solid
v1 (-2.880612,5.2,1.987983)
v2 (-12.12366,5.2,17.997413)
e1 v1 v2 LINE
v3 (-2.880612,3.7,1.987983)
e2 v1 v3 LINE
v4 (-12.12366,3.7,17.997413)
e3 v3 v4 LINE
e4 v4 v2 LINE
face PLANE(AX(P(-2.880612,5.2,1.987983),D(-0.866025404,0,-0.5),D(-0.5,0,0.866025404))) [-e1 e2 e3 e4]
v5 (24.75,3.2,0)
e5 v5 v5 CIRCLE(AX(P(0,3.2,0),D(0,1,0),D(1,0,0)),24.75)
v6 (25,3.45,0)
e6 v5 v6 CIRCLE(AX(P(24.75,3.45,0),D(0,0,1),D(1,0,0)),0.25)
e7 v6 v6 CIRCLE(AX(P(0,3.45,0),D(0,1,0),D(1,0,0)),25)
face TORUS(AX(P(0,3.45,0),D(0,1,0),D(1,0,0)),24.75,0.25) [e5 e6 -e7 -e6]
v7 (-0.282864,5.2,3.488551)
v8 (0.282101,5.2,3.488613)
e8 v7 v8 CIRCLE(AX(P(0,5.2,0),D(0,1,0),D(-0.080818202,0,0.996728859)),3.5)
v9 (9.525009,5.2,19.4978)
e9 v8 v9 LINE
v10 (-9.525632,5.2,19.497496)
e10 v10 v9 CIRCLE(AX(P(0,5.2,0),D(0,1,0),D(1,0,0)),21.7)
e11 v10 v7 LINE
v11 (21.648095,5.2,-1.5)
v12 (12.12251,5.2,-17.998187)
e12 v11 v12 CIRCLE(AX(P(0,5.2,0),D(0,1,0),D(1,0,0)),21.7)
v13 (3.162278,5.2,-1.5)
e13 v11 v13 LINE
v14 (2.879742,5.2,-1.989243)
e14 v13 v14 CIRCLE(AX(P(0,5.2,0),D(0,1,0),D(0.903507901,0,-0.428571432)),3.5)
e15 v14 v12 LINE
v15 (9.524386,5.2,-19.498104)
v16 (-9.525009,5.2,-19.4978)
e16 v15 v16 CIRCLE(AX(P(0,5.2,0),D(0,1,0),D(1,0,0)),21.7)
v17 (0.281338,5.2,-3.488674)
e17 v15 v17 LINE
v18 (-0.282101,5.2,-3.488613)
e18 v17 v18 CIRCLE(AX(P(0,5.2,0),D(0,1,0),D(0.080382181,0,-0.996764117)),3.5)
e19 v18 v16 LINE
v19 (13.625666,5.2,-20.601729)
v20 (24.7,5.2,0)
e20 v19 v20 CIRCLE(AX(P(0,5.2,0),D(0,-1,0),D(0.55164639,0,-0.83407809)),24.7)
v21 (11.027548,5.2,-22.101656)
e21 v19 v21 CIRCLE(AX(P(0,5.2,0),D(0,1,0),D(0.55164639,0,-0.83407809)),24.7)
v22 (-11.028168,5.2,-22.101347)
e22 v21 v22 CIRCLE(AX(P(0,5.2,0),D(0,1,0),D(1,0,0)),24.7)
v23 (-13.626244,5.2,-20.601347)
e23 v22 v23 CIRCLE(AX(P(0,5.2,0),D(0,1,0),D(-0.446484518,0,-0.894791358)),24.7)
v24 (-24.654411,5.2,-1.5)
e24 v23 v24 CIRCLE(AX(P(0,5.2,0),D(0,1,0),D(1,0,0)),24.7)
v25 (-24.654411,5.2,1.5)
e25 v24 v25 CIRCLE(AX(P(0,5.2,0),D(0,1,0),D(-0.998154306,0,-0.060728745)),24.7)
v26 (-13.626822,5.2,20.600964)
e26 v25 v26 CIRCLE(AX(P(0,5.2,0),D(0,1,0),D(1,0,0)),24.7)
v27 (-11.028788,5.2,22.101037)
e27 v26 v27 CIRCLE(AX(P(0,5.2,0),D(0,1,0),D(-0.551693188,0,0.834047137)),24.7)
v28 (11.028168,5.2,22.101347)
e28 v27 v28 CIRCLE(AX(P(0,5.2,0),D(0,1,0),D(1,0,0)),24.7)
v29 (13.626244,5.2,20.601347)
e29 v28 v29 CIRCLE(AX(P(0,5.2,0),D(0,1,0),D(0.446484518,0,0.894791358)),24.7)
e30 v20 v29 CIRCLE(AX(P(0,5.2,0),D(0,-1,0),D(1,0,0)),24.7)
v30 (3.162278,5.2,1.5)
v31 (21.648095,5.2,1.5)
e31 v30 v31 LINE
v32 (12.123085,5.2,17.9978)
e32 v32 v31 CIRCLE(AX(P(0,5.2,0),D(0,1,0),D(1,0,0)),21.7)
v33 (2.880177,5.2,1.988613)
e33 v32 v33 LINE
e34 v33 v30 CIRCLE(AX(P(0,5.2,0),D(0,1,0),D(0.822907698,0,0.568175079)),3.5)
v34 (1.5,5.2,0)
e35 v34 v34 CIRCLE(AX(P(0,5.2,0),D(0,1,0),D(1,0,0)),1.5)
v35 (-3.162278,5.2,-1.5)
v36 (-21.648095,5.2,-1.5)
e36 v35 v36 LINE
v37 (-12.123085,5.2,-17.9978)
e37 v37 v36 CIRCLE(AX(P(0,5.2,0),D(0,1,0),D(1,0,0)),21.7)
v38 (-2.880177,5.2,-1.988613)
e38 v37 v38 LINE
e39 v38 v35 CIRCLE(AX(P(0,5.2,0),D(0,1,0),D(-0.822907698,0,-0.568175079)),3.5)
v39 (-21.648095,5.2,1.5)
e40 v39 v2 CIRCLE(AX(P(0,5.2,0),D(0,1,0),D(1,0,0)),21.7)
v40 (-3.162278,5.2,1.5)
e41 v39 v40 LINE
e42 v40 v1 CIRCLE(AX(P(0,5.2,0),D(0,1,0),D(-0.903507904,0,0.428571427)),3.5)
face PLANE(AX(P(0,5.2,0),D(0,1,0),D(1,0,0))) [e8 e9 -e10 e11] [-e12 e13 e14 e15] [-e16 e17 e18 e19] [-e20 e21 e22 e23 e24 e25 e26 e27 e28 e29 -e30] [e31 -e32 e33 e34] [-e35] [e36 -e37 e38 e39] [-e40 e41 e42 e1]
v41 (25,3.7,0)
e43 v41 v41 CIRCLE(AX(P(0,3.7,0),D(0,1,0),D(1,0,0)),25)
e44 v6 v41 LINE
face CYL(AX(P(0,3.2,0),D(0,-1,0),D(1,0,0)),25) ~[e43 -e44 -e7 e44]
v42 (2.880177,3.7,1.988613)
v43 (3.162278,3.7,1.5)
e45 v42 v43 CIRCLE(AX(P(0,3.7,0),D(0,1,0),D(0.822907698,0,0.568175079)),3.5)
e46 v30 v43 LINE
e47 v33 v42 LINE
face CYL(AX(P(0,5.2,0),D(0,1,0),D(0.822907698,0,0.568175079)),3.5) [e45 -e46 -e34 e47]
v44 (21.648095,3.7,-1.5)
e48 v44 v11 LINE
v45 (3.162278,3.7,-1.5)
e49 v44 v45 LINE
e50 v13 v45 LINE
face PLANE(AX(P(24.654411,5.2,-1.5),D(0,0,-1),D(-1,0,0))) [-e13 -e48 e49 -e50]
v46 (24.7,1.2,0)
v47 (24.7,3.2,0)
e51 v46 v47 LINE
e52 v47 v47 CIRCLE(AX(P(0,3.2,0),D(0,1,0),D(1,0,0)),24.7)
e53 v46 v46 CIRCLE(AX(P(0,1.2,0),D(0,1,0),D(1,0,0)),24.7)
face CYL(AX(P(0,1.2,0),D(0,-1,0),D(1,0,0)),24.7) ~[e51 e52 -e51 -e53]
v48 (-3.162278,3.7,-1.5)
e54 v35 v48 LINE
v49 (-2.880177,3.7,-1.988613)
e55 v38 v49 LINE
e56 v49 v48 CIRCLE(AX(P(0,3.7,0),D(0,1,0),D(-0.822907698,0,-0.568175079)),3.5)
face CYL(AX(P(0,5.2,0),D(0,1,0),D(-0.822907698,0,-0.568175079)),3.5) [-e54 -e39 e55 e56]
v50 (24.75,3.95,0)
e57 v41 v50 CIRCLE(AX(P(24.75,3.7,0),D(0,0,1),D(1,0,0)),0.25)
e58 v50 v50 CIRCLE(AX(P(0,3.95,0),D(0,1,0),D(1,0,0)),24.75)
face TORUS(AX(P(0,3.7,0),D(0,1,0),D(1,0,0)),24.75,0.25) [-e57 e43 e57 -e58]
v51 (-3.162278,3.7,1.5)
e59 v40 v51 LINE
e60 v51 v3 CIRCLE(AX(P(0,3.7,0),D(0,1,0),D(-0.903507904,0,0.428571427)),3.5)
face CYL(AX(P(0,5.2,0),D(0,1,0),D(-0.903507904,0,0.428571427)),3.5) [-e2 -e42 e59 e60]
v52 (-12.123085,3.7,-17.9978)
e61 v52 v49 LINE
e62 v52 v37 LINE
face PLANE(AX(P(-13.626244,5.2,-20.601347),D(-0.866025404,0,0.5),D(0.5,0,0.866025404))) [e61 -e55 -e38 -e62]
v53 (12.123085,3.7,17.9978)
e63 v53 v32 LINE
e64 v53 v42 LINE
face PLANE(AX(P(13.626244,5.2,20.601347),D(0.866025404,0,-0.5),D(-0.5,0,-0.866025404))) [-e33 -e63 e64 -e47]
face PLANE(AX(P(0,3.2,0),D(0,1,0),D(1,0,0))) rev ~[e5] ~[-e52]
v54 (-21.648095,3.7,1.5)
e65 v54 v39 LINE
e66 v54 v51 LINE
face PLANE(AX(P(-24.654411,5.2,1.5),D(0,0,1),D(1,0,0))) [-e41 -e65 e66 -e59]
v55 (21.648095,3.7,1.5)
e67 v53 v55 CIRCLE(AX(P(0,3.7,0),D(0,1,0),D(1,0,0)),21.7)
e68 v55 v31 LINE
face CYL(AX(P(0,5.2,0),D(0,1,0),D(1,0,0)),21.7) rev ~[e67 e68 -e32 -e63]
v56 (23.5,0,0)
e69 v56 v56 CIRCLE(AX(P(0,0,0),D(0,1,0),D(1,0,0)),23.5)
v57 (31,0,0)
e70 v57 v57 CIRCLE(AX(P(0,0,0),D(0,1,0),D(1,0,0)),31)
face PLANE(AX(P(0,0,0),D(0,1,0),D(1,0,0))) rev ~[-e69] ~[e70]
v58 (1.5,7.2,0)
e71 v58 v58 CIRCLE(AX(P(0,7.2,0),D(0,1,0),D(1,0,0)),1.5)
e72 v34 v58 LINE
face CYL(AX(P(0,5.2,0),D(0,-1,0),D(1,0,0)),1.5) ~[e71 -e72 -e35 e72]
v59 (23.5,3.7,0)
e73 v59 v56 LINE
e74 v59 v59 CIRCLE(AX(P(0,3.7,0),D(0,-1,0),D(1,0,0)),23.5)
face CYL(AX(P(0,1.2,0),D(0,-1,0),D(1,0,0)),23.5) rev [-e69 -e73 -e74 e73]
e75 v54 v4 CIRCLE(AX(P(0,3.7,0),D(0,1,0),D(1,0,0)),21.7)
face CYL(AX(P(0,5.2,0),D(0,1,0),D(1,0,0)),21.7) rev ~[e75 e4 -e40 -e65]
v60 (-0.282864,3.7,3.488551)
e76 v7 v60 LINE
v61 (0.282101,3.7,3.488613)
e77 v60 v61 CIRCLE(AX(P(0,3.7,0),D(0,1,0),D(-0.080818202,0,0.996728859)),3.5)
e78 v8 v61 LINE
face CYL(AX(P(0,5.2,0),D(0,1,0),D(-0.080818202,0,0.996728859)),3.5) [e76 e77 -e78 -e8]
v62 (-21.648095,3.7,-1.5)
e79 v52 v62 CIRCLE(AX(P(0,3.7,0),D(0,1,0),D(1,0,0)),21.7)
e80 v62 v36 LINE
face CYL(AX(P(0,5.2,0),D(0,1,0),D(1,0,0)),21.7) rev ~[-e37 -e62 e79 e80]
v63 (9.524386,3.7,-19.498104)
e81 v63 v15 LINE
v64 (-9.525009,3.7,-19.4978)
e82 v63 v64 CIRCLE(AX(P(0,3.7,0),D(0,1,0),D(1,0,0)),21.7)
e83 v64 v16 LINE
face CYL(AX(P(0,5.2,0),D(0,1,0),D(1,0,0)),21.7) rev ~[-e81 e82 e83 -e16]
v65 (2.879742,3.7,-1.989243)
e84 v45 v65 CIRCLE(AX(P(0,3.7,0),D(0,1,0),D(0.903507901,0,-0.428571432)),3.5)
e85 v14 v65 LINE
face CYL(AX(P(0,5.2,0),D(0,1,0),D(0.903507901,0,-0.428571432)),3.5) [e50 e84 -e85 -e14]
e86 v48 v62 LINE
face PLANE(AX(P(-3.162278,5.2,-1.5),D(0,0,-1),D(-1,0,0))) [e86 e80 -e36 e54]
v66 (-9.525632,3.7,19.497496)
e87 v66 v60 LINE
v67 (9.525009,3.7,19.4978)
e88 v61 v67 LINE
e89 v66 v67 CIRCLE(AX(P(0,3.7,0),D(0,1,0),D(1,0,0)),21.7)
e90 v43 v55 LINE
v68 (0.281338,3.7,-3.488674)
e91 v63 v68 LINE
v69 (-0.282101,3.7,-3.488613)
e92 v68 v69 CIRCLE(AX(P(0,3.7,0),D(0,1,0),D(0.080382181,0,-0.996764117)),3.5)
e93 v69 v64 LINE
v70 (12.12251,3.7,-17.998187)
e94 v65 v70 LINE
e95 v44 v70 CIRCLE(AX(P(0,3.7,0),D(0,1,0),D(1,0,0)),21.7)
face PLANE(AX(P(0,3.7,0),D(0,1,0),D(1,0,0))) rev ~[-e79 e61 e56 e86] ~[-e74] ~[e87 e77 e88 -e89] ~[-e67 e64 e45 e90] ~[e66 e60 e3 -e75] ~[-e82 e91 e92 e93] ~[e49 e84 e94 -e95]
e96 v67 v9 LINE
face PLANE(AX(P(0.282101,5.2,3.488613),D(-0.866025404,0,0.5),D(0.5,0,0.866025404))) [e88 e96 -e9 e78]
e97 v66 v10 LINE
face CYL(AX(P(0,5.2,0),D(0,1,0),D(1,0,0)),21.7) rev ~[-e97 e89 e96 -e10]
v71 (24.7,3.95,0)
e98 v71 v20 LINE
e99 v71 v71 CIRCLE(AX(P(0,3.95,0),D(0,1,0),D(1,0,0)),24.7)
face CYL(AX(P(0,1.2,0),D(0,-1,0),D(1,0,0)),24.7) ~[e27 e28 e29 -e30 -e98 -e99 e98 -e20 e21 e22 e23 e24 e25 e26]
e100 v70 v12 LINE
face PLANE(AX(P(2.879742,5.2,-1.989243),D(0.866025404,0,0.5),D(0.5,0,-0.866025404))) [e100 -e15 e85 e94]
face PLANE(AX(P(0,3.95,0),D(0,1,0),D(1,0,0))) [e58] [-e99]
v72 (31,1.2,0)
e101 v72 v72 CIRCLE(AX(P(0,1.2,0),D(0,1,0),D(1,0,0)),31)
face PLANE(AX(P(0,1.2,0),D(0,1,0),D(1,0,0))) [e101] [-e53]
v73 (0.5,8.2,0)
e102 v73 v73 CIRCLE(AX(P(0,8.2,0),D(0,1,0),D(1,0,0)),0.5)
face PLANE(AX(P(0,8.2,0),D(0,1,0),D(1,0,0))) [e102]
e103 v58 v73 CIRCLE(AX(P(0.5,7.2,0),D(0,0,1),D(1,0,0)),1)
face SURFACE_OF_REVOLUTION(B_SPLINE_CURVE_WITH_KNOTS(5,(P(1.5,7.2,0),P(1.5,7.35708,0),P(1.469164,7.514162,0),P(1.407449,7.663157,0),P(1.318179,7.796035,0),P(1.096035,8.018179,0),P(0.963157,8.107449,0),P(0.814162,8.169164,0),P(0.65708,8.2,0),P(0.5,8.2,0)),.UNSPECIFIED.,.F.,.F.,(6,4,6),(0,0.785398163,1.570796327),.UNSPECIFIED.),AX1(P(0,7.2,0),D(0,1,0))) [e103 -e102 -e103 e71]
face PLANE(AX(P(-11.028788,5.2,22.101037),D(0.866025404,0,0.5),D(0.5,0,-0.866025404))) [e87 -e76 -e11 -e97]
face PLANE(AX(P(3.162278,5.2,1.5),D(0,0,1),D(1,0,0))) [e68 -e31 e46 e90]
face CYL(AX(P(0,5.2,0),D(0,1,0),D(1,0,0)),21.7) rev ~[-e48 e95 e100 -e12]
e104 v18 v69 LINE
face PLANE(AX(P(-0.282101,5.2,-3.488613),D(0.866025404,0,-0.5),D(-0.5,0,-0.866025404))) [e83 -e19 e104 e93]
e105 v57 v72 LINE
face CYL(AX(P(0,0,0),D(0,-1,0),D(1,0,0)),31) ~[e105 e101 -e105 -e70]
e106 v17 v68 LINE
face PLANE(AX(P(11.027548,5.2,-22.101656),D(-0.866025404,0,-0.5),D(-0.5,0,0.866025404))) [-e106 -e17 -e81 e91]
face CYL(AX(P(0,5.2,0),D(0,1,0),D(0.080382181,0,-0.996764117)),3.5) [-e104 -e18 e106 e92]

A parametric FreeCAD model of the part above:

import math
import FreeCAD as App
import Part
import Sketcher

V = App.Vector
Q = App.Units.Quantity


def edges_at(feature, points):
    """Names of the edges that pass closest to the given points."""
    edges = feature.Shape.Edges
    near = lambda p: min(range(len(edges)), key=lambda i: edges[i].distToShape(Part.Vertex(*p))[0])
    return sorted({f"Edge{near(p) + 1}" for p in points})

doc = App.newDocument("Part")
body = doc.addObject("PartDesign::Body", "Body")

# Sketch on XZ plane
sketch1 = body.newObject("Sketcher::SketchObject", "Sketch")
sketch1.AttachmentSupport = (doc.getObject("XZ_Plane"), [""])
sketch1.MapMode = "FlatFace"
sketch1.addGeometry([
    Part.Circle(V(0, 0, 0), V(0, 0, 1), 31),
    Part.Circle(V(0, 0, 0), V(0, 0, 1), 24),
], False)
sketch1.addConstraint([
    Sketcher.Constraint("Coincident", 0, 3, -1, 1),
    Sketcher.Constraint("Coincident", 1, 3, -1, 1),
    Sketcher.Constraint("Diameter", 0, 62.0),
    Sketcher.Constraint("Diameter", 1, 47.0),
])
pad1 = body.newObject("PartDesign::Pad", "Pad")
pad1.Profile = sketch1
pad1.Length = 1.2
pad1.Reversed = True

# Sketch on XZ plane
sketch2 = body.newObject("Sketcher::SketchObject", "Sketch001")
sketch2.AttachmentSupport = (doc.getObject("XZ_Plane"), [""])
sketch2.MapMode = "FlatFace"
sketch2.AttachmentOffset = App.Placement(V(0, 0, -1.2), App.Rotation())
sketch2.addGeometry([
    Part.Circle(V(0, 0, 0), V(0, 0, 1), 25),
    Part.Circle(V(0, 0, 0), V(0, 0, 1), 24),
], False)
sketch2.addConstraint([
    Sketcher.Constraint("Coincident", 0, 3, -1, 1),
    Sketcher.Constraint("Coincident", 1, 3, -1, 1),
    Sketcher.Constraint("Diameter", 1, 47.0),
    Sketcher.Constraint("Diameter", 0, 49.4),
])
pad2 = body.newObject("PartDesign::Pad", "Pad001")
pad2.Profile = sketch2
pad2.Length = 4
pad2.Reversed = True

# Sketch on XZ plane
sketch3 = body.newObject("Sketcher::SketchObject", "Sketch002")
sketch3.AttachmentSupport = (doc.getObject("XZ_Plane"), [""])
sketch3.MapMode = "FlatFace"
sketch3.AttachmentOffset = App.Placement(V(0, 0, -3.2), App.Rotation())
sketch3.addGeometry([
    Part.Circle(V(0, 0, 0), V(0, 0, 1), 25),
    Part.Circle(V(0, 0, 0), V(0, 0, 1), 25),
], False)
sketch3.addConstraint([
    Sketcher.Constraint("Coincident", 0, 3, -1, 1),
    Sketcher.Constraint("Coincident", 1, 3, -1, 1),
    Sketcher.Constraint("Diameter", 0, 50.0),
    Sketcher.Constraint("Diameter", 1, 49.4),
])
pad3 = body.newObject("PartDesign::Pad", "Pad002")
pad3.Profile = sketch3
pad3.Length = 0.75
pad3.Reversed = True
doc.recompute()

fillet = body.newObject("PartDesign::Fillet", "Fillet")
fillet.Base = (pad3, edges_at(pad3, [(-25, 3.95, 0), (-25, 3.2, 0)]))
fillet.Radius = 0.25

# Sketch on XZ plane
sketch4 = body.newObject("Sketcher::SketchObject", "Sketch003")
sketch4.AttachmentSupport = (doc.getObject("XZ_Plane"), [""])
sketch4.MapMode = "FlatFace"
sketch4.AttachmentOffset = App.Placement(V(0, 0, -5.2), App.Rotation())
sketch4.addGeometry([
    Part.ArcOfCircle(Part.Circle(V(0, 0, 0), V(0, 0, 1), 24.7), math.radians(56.52), math.radians(63.48)),  # 0
    Part.LineSegment(V(13.6, 20.6, 0), V(2.9, 2, 0)),  # 1
    Part.ArcOfCircle(Part.Circle(V(0, 0, 0), V(0, 0, 1), 3.5), math.radians(25.38), math.radians(34.62)),  # 2
    Part.LineSegment(V(3.2, 1.5, 0), V(24.7, 1.5, 0)),  # 3
    Part.ArcOfCircle(Part.Circle(V(0, 0, 0), V(0, 0, 1), 24.7), math.radians(-3.48), math.radians(3.48)),  # 4
    Part.LineSegment(V(24.7, -1.5, 0), V(3.2, -1.5, 0)),  # 5
    Part.ArcOfCircle(Part.Circle(V(0, 0, 0), V(0, 0, 1), 3.5), math.radians(-34.64), math.radians(-25.38)),  # 6
    Part.LineSegment(V(2.9, -2, 0), V(13.6, -20.6, 0)),  # 7
    Part.ArcOfCircle(Part.Circle(V(0, 0, 0), V(0, 0, 1), 24.7), math.radians(-63.48), math.radians(-56.52)),  # 8
    Part.LineSegment(V(11, -22.1, 0), V(0.3, -3.5, 0)),  # 9
    Part.ArcOfCircle(Part.Circle(V(0, 0, 0), V(0, 0, 1), 3.5), math.radians(-94.62), math.radians(-85.39)),  # 10
    Part.LineSegment(V(-0.3, -3.5, 0), V(-11, -22.1, 0)),  # 11
    Part.ArcOfCircle(Part.Circle(V(0, 0, 0), V(0, 0, 1), 24.7), math.radians(-123.48), math.radians(-116.52)),  # 12
    Part.LineSegment(V(-13.6, -20.6, 0), V(-2.9, -2, 0)),  # 13
    Part.ArcOfCircle(Part.Circle(V(0, 0, 0), V(0, 0, 1), 3.5), math.radians(-154.62), math.radians(-145.38)),  # 14
    Part.LineSegment(V(-3.2, -1.5, 0), V(-24.7, -1.5, 0)),  # 15
    Part.ArcOfCircle(Part.Circle(V(0, 0, 0), V(0, 0, 1), 24.7), math.radians(176.52), math.radians(183.48)),  # 16
    Part.LineSegment(V(-24.7, 1.5, 0), V(-3.2, 1.5, 0)),  # 17
    Part.ArcOfCircle(Part.Circle(V(0, 0, 0), V(0, 0, 1), 3.5), math.radians(145.39), math.radians(154.62)),  # 18
    Part.LineSegment(V(-2.9, 2, 0), V(-13.6, 20.6, 0)),  # 19
    Part.ArcOfCircle(Part.Circle(V(0, 0, 0), V(0, 0, 1), 24.7), math.radians(116.52), math.radians(123.48)),  # 20
    Part.LineSegment(V(-11, 22.1, 0), V(-0.3, 3.5, 0)),  # 21
    Part.ArcOfCircle(Part.Circle(V(0, 0, 0), V(0, 0, 1), 3.5), math.radians(85.38), math.radians(94.64)),  # 22
    Part.LineSegment(V(0.3, 3.5, 0), V(11, 22.1, 0)),  # 23
], False)
sketch4.addConstraint([
    Sketcher.Constraint("Coincident", 0, 1, 1, 1),
    Sketcher.Constraint("Coincident", 1, 2, 2, 2),
    Sketcher.Constraint("Coincident", 2, 1, 3, 1),
    Sketcher.Constraint("Coincident", 3, 2, 4, 2),
    Sketcher.Constraint("Coincident", 4, 1, 5, 1),
    Sketcher.Constraint("Coincident", 5, 2, 6, 2),
    Sketcher.Constraint("Coincident", 6, 1, 7, 1),
    Sketcher.Constraint("Coincident", 7, 2, 8, 2),
    Sketcher.Constraint("Coincident", 8, 1, 9, 1),
    Sketcher.Constraint("Coincident", 9, 2, 10, 2),
    Sketcher.Constraint("Coincident", 10, 1, 11, 1),
    Sketcher.Constraint("Coincident", 11, 2, 12, 2),
    Sketcher.Constraint("Coincident", 12, 1, 13, 1),
    Sketcher.Constraint("Coincident", 13, 2, 14, 2),
    Sketcher.Constraint("Coincident", 14, 1, 15, 1),
    Sketcher.Constraint("Coincident", 15, 2, 16, 2),
    Sketcher.Constraint("Coincident", 16, 1, 17, 1),
    Sketcher.Constraint("Coincident", 17, 2, 18, 2),
    Sketcher.Constraint("Coincident", 18, 1, 19, 1),
    Sketcher.Constraint("Coincident", 19, 2, 20, 2),
    Sketcher.Constraint("Coincident", 20, 1, 21, 1),
    Sketcher.Constraint("Coincident", 21, 2, 22, 2),
    Sketcher.Constraint("Coincident", 22, 1, 23, 1),
    Sketcher.Constraint("Coincident", 23, 2, 0, 2),
    Sketcher.Constraint("Horizontal", 3),
    Sketcher.Constraint("Horizontal", 5),
    Sketcher.Constraint("Horizontal", 15),
    Sketcher.Constraint("Horizontal", 17),
    Sketcher.Constraint("Coincident", 0, 3, -1, 1),
    Sketcher.Constraint("Coincident", 2, 3, -1, 1),
    Sketcher.Constraint("Coincident", 4, 3, -1, 1),
    Sketcher.Constraint("Coincident", 6, 3, -1, 1),
    Sketcher.Constraint("Coincident", 8, 3, -1, 1),
    Sketcher.Constraint("Coincident", 10, 3, -1, 1),
    Sketcher.Constraint("Coincident", 12, 3, -1, 1),
    Sketcher.Constraint("Coincident", 14, 3, -1, 1),
    Sketcher.Constraint("Coincident", 16, 3, -1, 1),
    Sketcher.Constraint("Coincident", 18, 3, -1, 1),
    Sketcher.Constraint("Coincident", 20, 3, -1, 1),
    Sketcher.Constraint("Coincident", 22, 3, -1, 1),
    Sketcher.Constraint("Equal", 0, 4),
    Sketcher.Constraint("Equal", 2, 6),
    Sketcher.Constraint("Equal", 4, 8),
    Sketcher.Constraint("Equal", 6, 10),
    Sketcher.Constraint("Equal", 8, 12),
    Sketcher.Constraint("Equal", 10, 14),
    Sketcher.Constraint("Equal", 12, 16),
    Sketcher.Constraint("Equal", 14, 18),
    Sketcher.Constraint("Equal", 16, 20),
    Sketcher.Constraint("Equal", 18, 22),
    Sketcher.Constraint("Parallel", 7, 9),
    Sketcher.Constraint("Parallel", 1, 11),
    Sketcher.Constraint("Parallel", 11, 13),
    Sketcher.Constraint("Parallel", 9, 19),
    Sketcher.Constraint("Parallel", 19, 21),
    Sketcher.Constraint("Parallel", 13, 23),
    Sketcher.Constraint("Horizontal", 5, 2, 14, 1),
    Sketcher.Constraint("Horizontal", 3, 2, 16, 1),
    Sketcher.Constraint("Vertical", 3, 2, 4, 1),
    Sketcher.Constraint("Equal", 1, 11),
    Sketcher.Constraint("Equal", 11, 13),
    Sketcher.Constraint("Equal", 9, 19),
    Sketcher.Constraint("Equal", 7, 21),
    Sketcher.Constraint("Equal", 13, 23),
    Sketcher.Constraint("Radius", 0, 24.7),
    Sketcher.Constraint("Radius", 2, 3.5),
    Sketcher.Constraint("Angle", 1, Q("-120 deg")),
    Sketcher.Constraint("Angle", 7, Q("-60 deg")),
    Sketcher.Constraint("DistanceY", 4, 1, 3, 2, 3.0),
    Sketcher.Constraint("DistanceY", 11, 2, 12, 1, 1.5),
    Sketcher.Constraint("Distance", 9, 21.49242),
    Sketcher.Constraint("DistanceX", -1, 1, 6, 1, 2.879742),
])
pad4 = body.newObject("PartDesign::Pad", "Pad003")
pad4.Profile = sketch4
pad4.Length = 1.5

# Sketch on XZ plane
sketch5 = body.newObject("Sketcher::SketchObject", "Sketch004")
sketch5.AttachmentSupport = (doc.getObject("XZ_Plane"), [""])
sketch5.MapMode = "FlatFace"
sketch5.AttachmentOffset = App.Placement(V(0, 0, -5.2), App.Rotation())
sketch5.addGeometry([
    Part.Circle(V(0, 0, 0), V(0, 0, 1), 25),
    Part.Circle(V(0, 0, 0), V(0, 0, 1), 22),
], False)
sketch5.addConstraint([
    Sketcher.Constraint("Coincident", 0, 3, -1, 1),
    Sketcher.Constraint("Coincident", 1, 3, -1, 1),
    Sketcher.Constraint("Diameter", 0, 49.4),
    Sketcher.Constraint("Diameter", 1, 43.4),
])
pad5 = body.newObject("PartDesign::Pad", "Pad004")
pad5.Profile = sketch5
pad5.Length = 1.5

# Sketch on XZ plane
sketch6 = body.newObject("Sketcher::SketchObject", "Sketch005")
sketch6.AttachmentSupport = (doc.getObject("XZ_Plane"), [""])
sketch6.MapMode = "FlatFace"
sketch6.AttachmentOffset = App.Placement(V(0, 0, -5.2), App.Rotation())
sketch6.addGeometry(Part.Circle(V(0, 0, 0), V(0, 0, 1), 1.5), False)
sketch6.addConstraint([
    Sketcher.Constraint("Coincident", 0, 3, -1, 1),
    Sketcher.Constraint("Diameter", 0, 3.0),
])
pad6 = body.newObject("PartDesign::Pad", "Pad005")
pad6.Profile = sketch6
pad6.Length = 3
pad6.Reversed = True
doc.recompute()

fillet2 = body.newObject("PartDesign::Fillet", "Fillet001")
fillet2.Base = (pad6, edges_at(pad6, [(-1.5, 8.2, 0)]))
fillet2.Radius = 1

doc.recompute()
